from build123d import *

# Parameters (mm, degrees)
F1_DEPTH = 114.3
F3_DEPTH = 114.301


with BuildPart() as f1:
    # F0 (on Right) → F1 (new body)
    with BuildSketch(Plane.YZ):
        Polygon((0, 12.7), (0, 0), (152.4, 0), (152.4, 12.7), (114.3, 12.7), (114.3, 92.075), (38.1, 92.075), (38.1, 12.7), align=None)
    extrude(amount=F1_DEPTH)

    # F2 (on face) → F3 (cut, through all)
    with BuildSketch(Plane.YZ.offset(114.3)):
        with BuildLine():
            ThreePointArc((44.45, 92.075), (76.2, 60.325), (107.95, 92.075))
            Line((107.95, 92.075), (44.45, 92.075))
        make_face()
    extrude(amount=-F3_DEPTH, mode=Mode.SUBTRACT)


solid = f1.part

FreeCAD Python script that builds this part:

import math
import FreeCAD as App
import Part
import Sketcher
from FreeCAD import Vector
Q = App.Units.Quantity


def add_polygon(sketch, points):
    """Adds a closed chain of lines whose ends are joined by coincident constraints."""
    first, n = sketch.GeometryCount, len(points)
    for a, b in zip(points, points[1:] + points[:1]):
        sketch.addGeometry(Part.LineSegment(App.Vector(*a, 0), App.Vector(*b, 0)), False)
    for i in range(n):
        sketch.addConstraint(Sketcher.Constraint("Coincident", first + i, 2, first + (i + 1) % n, 1))

doc = App.newDocument("Part")
body = doc.addObject("PartDesign::Body", "Body")

# Sketch on YZ plane
sketch1 = body.newObject("Sketcher::SketchObject", "Sketch")
sketch1.AttachmentSupport = (doc.getObject("YZ_Plane"), [""])
sketch1.MapMode = "FlatFace"
add_polygon(sketch1, [(0, 12.7), (0, 0), (152.4, 0), (152.4, 12.7), (114.3, 12.7), (114.3, 92.075), (38.1, 92.075), (38.1, 12.7)])  # lines 0-7
sketch1.addConstraint([
    Sketcher.Constraint("Vertical", 0),
    Sketcher.Constraint("Horizontal", 1),
    Sketcher.Constraint("Vertical", 2),
    Sketcher.Constraint("Horizontal", 3),
    Sketcher.Constraint("Vertical", 4),
    Sketcher.Constraint("Horizontal", 5),
    Sketcher.Constraint("Vertical", 6),
    Sketcher.Constraint("Horizontal", 7),
    Sketcher.Constraint("Coincident", 0, 2, -1, 1),
    Sketcher.Constraint("Horizontal", 3, 2, 6, 2),
    Sketcher.Constraint("Equal", 3, 7),
    Sketcher.Constraint("DistanceX", 1, 1, 1, 2, Q("6 in")),
    Sketcher.Constraint("DistanceX", 5, 2, 5, 1, Q("3 in")),
    Sketcher.Constraint("DistanceY", 0, 2, 0, 1, Q("0.5 in")),
    Sketcher.Constraint("DistanceY", 4, 1, 4, 2, Q("3.125 in")),
])
pad1 = body.newObject("PartDesign::Pad", "Pad")
pad1.Profile = sketch1
pad1.Length = Q("4.5 in")

# Sketch on YZ plane
sketch2 = body.newObject("Sketcher::SketchObject", "Sketch001")
sketch2.AttachmentSupport = (doc.getObject("YZ_Plane"), [""])
sketch2.MapMode = "FlatFace"
sketch2.AttachmentOffset = App.Placement(Vector(0, 0, 4.5 * 25.4), App.Rotation())
sketch2.addGeometry([
    Part.ArcOfCircle(Part.Circle(Vector(76.2, 92.075, 0), Vector(0, 0, 1), 31.75), math.radians(180), math.radians(360)),
    Part.LineSegment(Vector(107.95, 92.075, 0), Vector(44.45, 92.075, 0)),
], False)
sketch2.addConstraint([
    Sketcher.Constraint("Coincident", 0, 1, 1, 2),
    Sketcher.Constraint("Coincident", 1, 1, 0, 2),
    Sketcher.Constraint("Horizontal", 1),
    Sketcher.Constraint("Radius", 0, Q("1.25 in")),
    Sketcher.Constraint("DistanceX", -1, 1, 0, 3, Q("3 in")),
    Sketcher.Constraint("DistanceY", -1, 1, 0, 3, Q("3.625 in")),
    Sketcher.Constraint("DistanceY", -1, 1, 0, 1, Q("3.625 in")),
])
pocket1 = body.newObject("PartDesign::Pocket", "Pocket")
pocket1.Profile = sketch2
pocket1.Type = "ThroughAll"

doc.recompute()
